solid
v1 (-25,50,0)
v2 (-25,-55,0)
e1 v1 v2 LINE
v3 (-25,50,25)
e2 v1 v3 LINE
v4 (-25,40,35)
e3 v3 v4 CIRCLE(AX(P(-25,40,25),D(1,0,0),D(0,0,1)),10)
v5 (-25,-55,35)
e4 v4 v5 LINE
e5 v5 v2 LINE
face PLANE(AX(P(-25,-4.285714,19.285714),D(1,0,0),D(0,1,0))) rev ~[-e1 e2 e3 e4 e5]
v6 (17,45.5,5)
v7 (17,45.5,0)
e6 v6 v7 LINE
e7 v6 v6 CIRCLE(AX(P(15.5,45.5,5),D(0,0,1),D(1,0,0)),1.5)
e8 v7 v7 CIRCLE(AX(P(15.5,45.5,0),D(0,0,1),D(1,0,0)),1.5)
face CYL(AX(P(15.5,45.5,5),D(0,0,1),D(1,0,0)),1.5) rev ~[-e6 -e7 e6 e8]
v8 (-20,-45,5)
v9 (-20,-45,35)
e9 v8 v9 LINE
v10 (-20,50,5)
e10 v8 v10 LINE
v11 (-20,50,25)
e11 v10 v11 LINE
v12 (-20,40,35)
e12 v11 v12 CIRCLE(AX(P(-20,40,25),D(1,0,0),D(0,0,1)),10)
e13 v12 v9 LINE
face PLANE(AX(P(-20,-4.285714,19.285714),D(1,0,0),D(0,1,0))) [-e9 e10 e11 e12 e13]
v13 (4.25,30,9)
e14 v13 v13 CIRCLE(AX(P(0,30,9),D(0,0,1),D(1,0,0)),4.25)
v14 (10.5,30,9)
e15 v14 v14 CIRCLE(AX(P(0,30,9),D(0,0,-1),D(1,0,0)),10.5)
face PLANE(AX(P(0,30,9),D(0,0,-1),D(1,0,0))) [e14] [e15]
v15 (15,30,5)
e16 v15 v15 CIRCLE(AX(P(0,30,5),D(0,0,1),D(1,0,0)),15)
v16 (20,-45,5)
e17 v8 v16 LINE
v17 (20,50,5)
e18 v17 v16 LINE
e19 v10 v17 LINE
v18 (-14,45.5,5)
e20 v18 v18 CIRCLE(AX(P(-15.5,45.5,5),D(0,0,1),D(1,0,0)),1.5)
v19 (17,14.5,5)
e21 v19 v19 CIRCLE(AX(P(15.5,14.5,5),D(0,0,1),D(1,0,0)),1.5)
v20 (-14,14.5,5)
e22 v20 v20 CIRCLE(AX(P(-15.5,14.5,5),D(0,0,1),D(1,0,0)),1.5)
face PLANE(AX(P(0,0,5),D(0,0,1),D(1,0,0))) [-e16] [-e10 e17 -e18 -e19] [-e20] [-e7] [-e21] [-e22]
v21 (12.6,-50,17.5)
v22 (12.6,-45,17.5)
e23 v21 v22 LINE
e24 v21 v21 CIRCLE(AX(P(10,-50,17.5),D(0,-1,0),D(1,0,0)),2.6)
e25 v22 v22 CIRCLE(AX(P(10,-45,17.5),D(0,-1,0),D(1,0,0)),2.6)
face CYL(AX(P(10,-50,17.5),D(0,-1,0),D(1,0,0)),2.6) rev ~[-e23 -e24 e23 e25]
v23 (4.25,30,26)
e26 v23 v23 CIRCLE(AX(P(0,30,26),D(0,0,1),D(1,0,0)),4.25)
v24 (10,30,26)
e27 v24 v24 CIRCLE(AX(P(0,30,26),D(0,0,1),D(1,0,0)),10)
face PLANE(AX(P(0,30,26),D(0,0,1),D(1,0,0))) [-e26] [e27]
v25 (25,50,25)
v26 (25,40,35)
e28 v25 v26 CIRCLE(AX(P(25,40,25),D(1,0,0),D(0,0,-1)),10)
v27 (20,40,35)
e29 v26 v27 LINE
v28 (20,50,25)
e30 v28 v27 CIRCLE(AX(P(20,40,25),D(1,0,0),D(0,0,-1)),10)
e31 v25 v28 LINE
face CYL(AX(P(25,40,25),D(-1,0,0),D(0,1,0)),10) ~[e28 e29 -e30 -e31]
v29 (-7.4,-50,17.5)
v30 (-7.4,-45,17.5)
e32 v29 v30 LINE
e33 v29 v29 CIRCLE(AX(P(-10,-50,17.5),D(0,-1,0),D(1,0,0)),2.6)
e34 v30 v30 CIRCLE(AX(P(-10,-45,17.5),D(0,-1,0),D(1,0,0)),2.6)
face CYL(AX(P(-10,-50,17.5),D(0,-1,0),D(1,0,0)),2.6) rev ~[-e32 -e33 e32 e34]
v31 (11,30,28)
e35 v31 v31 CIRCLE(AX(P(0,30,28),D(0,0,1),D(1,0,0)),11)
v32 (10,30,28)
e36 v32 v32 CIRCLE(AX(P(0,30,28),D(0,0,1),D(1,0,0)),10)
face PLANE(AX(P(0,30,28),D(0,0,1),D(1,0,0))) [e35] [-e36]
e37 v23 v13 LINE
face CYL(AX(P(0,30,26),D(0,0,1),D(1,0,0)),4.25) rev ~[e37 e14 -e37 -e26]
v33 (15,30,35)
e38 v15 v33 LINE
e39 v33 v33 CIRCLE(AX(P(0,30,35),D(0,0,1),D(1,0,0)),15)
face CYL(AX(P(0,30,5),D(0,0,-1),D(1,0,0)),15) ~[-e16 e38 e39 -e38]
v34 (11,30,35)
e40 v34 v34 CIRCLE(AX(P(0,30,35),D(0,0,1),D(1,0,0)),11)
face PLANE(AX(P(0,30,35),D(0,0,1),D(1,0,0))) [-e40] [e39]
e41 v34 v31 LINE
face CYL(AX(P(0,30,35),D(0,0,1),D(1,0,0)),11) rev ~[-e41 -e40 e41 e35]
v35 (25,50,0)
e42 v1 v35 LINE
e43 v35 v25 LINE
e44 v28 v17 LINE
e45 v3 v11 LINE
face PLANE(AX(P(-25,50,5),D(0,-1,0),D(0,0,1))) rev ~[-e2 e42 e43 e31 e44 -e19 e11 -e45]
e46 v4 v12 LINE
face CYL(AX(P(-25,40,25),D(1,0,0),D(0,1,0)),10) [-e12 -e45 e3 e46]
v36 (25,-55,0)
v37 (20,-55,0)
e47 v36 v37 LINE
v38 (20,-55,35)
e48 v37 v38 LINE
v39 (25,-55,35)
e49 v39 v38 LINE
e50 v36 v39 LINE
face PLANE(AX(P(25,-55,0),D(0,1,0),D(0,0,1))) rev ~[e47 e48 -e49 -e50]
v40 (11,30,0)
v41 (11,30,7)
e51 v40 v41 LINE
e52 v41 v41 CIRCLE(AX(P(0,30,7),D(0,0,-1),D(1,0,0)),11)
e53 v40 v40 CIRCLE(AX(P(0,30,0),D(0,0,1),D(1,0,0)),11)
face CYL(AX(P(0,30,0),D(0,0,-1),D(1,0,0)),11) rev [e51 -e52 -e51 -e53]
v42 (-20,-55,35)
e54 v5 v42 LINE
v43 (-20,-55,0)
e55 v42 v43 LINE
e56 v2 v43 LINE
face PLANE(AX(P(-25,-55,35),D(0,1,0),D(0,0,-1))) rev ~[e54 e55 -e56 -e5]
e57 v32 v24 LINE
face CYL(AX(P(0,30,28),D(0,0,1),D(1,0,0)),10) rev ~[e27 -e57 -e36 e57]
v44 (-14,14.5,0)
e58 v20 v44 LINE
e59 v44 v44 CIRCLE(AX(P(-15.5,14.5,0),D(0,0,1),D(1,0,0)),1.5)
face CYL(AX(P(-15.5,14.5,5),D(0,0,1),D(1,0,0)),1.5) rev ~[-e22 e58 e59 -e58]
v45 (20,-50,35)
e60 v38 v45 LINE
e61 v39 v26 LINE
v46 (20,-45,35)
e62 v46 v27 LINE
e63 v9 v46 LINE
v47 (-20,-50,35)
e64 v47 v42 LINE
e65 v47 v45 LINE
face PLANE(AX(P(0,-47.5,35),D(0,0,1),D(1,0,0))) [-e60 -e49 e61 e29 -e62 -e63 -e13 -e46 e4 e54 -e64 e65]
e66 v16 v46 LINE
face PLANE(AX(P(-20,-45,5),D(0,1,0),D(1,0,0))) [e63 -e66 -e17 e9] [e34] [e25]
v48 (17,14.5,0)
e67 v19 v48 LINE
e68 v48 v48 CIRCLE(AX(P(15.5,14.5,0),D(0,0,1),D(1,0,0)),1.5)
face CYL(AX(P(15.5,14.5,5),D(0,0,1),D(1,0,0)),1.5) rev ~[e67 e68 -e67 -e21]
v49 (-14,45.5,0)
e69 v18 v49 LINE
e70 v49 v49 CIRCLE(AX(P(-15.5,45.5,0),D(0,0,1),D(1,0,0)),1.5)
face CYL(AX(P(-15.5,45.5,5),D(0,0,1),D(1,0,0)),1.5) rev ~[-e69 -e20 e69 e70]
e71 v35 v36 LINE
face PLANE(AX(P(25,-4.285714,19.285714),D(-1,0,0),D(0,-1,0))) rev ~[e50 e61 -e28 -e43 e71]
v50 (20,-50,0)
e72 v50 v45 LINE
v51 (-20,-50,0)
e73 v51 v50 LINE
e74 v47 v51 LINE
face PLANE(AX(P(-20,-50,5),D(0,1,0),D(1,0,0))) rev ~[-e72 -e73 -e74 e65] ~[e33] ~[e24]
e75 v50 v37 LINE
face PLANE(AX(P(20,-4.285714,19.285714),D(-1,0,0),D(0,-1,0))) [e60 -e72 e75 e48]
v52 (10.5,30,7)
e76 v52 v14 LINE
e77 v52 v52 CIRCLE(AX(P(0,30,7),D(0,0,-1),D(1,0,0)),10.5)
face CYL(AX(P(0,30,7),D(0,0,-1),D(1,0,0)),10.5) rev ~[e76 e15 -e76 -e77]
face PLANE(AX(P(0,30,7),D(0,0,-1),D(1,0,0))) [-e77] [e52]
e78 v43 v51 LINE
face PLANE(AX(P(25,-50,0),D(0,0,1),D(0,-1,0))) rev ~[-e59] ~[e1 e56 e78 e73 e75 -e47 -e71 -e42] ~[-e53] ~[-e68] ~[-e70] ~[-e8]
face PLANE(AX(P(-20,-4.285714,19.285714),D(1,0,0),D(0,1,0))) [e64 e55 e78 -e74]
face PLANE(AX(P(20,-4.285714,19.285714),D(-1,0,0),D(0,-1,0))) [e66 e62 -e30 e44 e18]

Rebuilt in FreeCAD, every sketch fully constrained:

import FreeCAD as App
import Part
import Sketcher

V = App.Vector


def edges_at(feature, points):
    """Names of the edges that pass closest to the given points."""
    edges = feature.Shape.Edges
    near = lambda p: min(range(len(edges)), key=lambda i: edges[i].distToShape(Part.Vertex(*p))[0])
    return sorted({f"Edge{near(p) + 1}" for p in points})


def add_polygon(sketch, points):
    """Adds a closed chain of lines whose ends are joined by coincident constraints."""
    first, n = sketch.GeometryCount, len(points)
    for a, b in zip(points, points[1:] + points[:1]):
        sketch.addGeometry(Part.LineSegment(App.Vector(*a, 0), App.Vector(*b, 0)), False)
    for i in range(n):
        sketch.addConstraint(Sketcher.Constraint("Coincident", first + i, 2, first + (i + 1) % n, 1))

doc = App.newDocument("Part")
params = doc.addObject("Spreadsheet::Sheet", "Params")
for row, (alias, value) in enumerate([
    ("sketch1_diameter", "22 mm"),
    ("sketch1_width", "50 mm"),
    ("sketch1_height", "100 mm"),
    ("pad1_length", "5 mm"),
    ("sketch2_width", "100 mm"),
    ("sketch2_width2", "5 mm"),
    ("sketch2_height", "30 mm"),
    ("pad2_length", "5 mm"),
    ("sketch3_width", "5 mm"),
    ("sketch3_width2", "100 mm"),
    ("sketch3_height", "30 mm"),
    ("pad3_length", "5 mm"),
    ("sketch4_width", "40 mm"),
    ("sketch4_height", "5 mm"),
    ("pad4_length", "30 mm"),
    ("sketch5_diameter", "3 mm"),
    ("pocket1_length", "5 mm"),
    ("sketch6_diameter", "30 mm"),
    ("pad5_length", "30 mm"),
    ("sketch7_diameter", "22 mm"),
    ("pocket2_length", "7 mm"),
    ("sketch8_diameter", "20 mm"),
    ("pocket3_length", "2 mm"),
    ("sketch9_diameter", "8.5 mm"),
    ("sketch10_diameter", "22 mm"),
    ("pocket5_length", "2 mm"),
    ("sketch11_diameter", "21 mm"),
    ("pocket6_length", "2 mm"),
    ("sketch12_diameter", "5.2 mm"),
    ("pocket7_length", "5 mm"),
    ("fillet_radius", "10 mm"),
], start=1):
    params.set(f"A{row}", alias)
    params.set(f"B{row}", "=" + value)
    params.setAlias(f"B{row}", alias)

body = doc.addObject("PartDesign::Body", "Body")

# Sketch on XY plane
sketch1 = body.newObject("Sketcher::SketchObject", "Sketch")
sketch1.AttachmentSupport = (doc.getObject("XY_Plane"), [""])
sketch1.MapMode = "FlatFace"
add_polygon(sketch1, [(-25, 50), (-25, -50), (25, -50), (25, 50)])  # lines 0-3
sketch1.addGeometry(Part.Circle(V(0, 30, 0), V(0, 0, 1), 11), False)  # 4
sketch1.addConstraint([
    Sketcher.Constraint("Vertical", 0),
    Sketcher.Constraint("Horizontal", 1),
    Sketcher.Constraint("Vertical", 2),
    Sketcher.Constraint("Horizontal", 3),
    Sketcher.Constraint("Symmetric", 0, 2, 2, 2, -1, 1),
    Sketcher.Constraint("PointOnObject", 4, 3, -2),
    Sketcher.Constraint("Diameter", 4, 22.0),
    Sketcher.Constraint("DistanceX", 1, 1, 1, 2, 50.0),
    Sketcher.Constraint("DistanceY", 0, 2, 0, 1, 100.0),
    Sketcher.Constraint("DistanceY", -1, 1, 4, 3, 30.0),
])
sketch1.setExpression("Constraints[10]", "Params.sketch1_diameter")
sketch1.setExpression("Constraints[11]", "Params.sketch1_width")
sketch1.setExpression("Constraints[12]", "Params.sketch1_height")
pad1 = body.newObject("PartDesign::Pad", "Pad")
pad1.Profile = sketch1
pad1.setExpression("Length", "Params.pad1_length")

# Sketch on YZ plane
sketch2 = body.newObject("Sketcher::SketchObject", "Sketch001")
sketch2.AttachmentSupport = (doc.getObject("YZ_Plane"), [""])
sketch2.MapMode = "FlatFace"
sketch2.AttachmentOffset = App.Placement(V(0, 0, -25), App.Rotation())
add_polygon(sketch2, [(50, 35), (50, 5), (-50, 5), (-50, 0), (-55, 0), (-55, 35)])  # lines 0-5
sketch2.addConstraint([
    Sketcher.Constraint("Vertical", 0),
    Sketcher.Constraint("Horizontal", 1),
    Sketcher.Constraint("Vertical", 2),
    Sketcher.Constraint("Horizontal", 3),
    Sketcher.Constraint("Vertical", 4),
    Sketcher.Constraint("Horizontal", 5),
    Sketcher.Constraint("PointOnObject", 2, 2, -1),
    Sketcher.Constraint("Equal", 3, 2),
    Sketcher.Constraint("DistanceX", 1, 2, 1, 1, 100.0),
    Sketcher.Constraint("DistanceX", 3, 2, 3, 1, 5.0),
    Sketcher.Constraint("DistanceY", 0, 2, 0, 1, 30.0),
    Sketcher.Constraint("DistanceX", -1, 1, 0, 2, 50.0),
])
sketch2.setExpression("Constraints[14]", "Params.sketch2_width")
sketch2.setExpression("Constraints[15]", "Params.sketch2_width2")
sketch2.setExpression("Constraints[16]", "Params.sketch2_height")
pad2 = body.newObject("PartDesign::Pad", "Pad001")
pad2.Profile = sketch2
pad2.setExpression("Length", "Params.pad2_length")

# Sketch on YZ plane
sketch3 = body.newObject("Sketcher::SketchObject", "Sketch002")
sketch3.AttachmentSupport = (doc.getObject("YZ_Plane"), [""])
sketch3.MapMode = "FlatFace"
sketch3.AttachmentOffset = App.Placement(V(0, 0, 25), App.Rotation())
add_polygon(sketch3, [(-55, 0), (-50, 0), (-50, 5), (50, 5), (50, 35), (-55, 35)])  # lines 0-5
sketch3.addConstraint([
    Sketcher.Constraint("Horizontal", 0),
    Sketcher.Constraint("Vertical", 1),
    Sketcher.Constraint("Horizontal", 2),
    Sketcher.Constraint("Vertical", 3),
    Sketcher.Constraint("Horizontal", 4),
    Sketcher.Constraint("Vertical", 5),
    Sketcher.Constraint("PointOnObject", 0, 2, -1),
    Sketcher.Constraint("Equal", 0, 1),
    Sketcher.Constraint("DistanceX", 0, 1, 0, 2, 5.0),
    Sketcher.Constraint("DistanceX", 2, 1, 2, 2, 100.0),
    Sketcher.Constraint("DistanceY", 3, 1, 3, 2, 30.0),
    Sketcher.Constraint("DistanceX", 0, 2, -1, 1, 50.0),
])
sketch3.setExpression("Constraints[14]", "Params.sketch3_width")
sketch3.setExpression("Constraints[15]", "Params.sketch3_width2")
sketch3.setExpression("Constraints[16]", "Params.sketch3_height")
pad3 = body.newObject("PartDesign::Pad", "Pad002")
pad3.Profile = sketch3
pad3.setExpression("Length", "Params.pad3_length")
pad3.Reversed = True

# Sketch on XY plane
sketch4 = body.newObject("Sketcher::SketchObject", "Sketch003")
sketch4.AttachmentSupport = (doc.getObject("XY_Plane"), [""])
sketch4.MapMode = "FlatFace"
sketch4.AttachmentOffset = App.Placement(V(0, 0, 5), App.Rotation())
add_polygon(sketch4, [(-20, -45), (-20, -50), (20, -50), (20, -45)])  # lines 0-3
sketch4.addConstraint([
    Sketcher.Constraint("Vertical", 0),
    Sketcher.Constraint("Horizontal", 1),
    Sketcher.Constraint("Vertical", 2),
    Sketcher.Constraint("Horizontal", 3),
    Sketcher.Constraint("DistanceX", 1, 1, 1, 2, 40.0),
    Sketcher.Constraint("DistanceY", 0, 2, 0, 1, 5.0),
    Sketcher.Constraint("DistanceX", 0, 2, -1, 1, 20.0),
    Sketcher.Constraint("DistanceY", 0, 2, -1, 1, 50.0),
])
sketch4.setExpression("Constraints[8]", "Params.sketch4_width")
sketch4.setExpression("Constraints[9]", "Params.sketch4_height")
pad4 = body.newObject("PartDesign::Pad", "Pad003")
pad4.Profile = sketch4
pad4.setExpression("Length", "Params.pad4_length")

# Sketch on XY plane
sketch5 = body.newObject("Sketcher::SketchObject", "Sketch004")
sketch5.AttachmentSupport = (doc.getObject("XY_Plane"), [""])
sketch5.MapMode = "FlatFace"
sketch5.AttachmentOffset = App.Placement(V(0, 0, 5), App.Rotation())
sketch5.addGeometry([
    Part.Circle(V(-15.5, 45.5, 0), V(0, 0, 1), 1.5),
    Part.Circle(V(-15.5, 14.5, 0), V(0, 0, 1), 1.5),
    Part.Circle(V(15.5, 14.5, 0), V(0, 0, 1), 1.5),
    Part.Circle(V(15.5, 45.5, 0), V(0, 0, 1), 1.5),
], False)
sketch5.addConstraint([
    Sketcher.Constraint("Equal", 0, 1),
    Sketcher.Constraint("Equal", 1, 2),
    Sketcher.Constraint("Equal", 2, 3),
    Sketcher.Constraint("Symmetric", 1, 3, 2, 3, -2),
    Sketcher.Constraint("Symmetric", 0, 3, 3, 3, -2),
    Sketcher.Constraint("Vertical", 0, 3, 1, 3),
    Sketcher.Constraint("Diameter", 0, 3.0),
    Sketcher.Constraint("DistanceY", 1, 3, 0, 3, 31.0),
    Sketcher.Constraint("DistanceX", 1, 3, 2, 3, 31.0),
    Sketcher.Constraint("DistanceY", -1, 1, 0, 3, 45.5),
])
sketch5.setExpression("Constraints[6]", "Params.sketch5_diameter")
pocket1 = body.newObject("PartDesign::Pocket", "Pocket")
pocket1.Profile = sketch5
pocket1.setExpression("Length", "Params.pocket1_length")

# Sketch on XY plane
sketch6 = body.newObject("Sketcher::SketchObject", "Sketch005")
sketch6.AttachmentSupport = (doc.getObject("XY_Plane"), [""])
sketch6.MapMode = "FlatFace"
sketch6.AttachmentOffset = App.Placement(V(0, 0, 5), App.Rotation())
sketch6.addGeometry(Part.Circle(V(0, 30, 0), V(0, 0, 1), 15), False)
sketch6.addConstraint([
    Sketcher.Constraint("PointOnObject", 0, 3, -2),
    Sketcher.Constraint("Diameter", 0, 30.0),
    Sketcher.Constraint("DistanceY", -1, 1, 0, 3, 30.0),
])
sketch6.setExpression("Constraints[1]", "Params.sketch6_diameter")
pad5 = body.newObject("PartDesign::Pad", "Pad004")
pad5.Profile = sketch6
pad5.setExpression("Length", "Params.pad5_length")

# Sketch on XY plane
sketch7 = body.newObject("Sketcher::SketchObject", "Sketch006")
sketch7.AttachmentSupport = (doc.getObject("XY_Plane"), [""])
sketch7.MapMode = "FlatFace"
sketch7.AttachmentOffset = App.Placement(V(0, 0, 35), App.Rotation())
sketch7.addGeometry(Part.Circle(V(0, 30, 0), V(0, 0, 1), 11), False)
sketch7.addConstraint([
    Sketcher.Constraint("PointOnObject", 0, 3, -2),
    Sketcher.Constraint("Diameter", 0, 22.0),
    Sketcher.Constraint("DistanceY", -1, 1, 0, 3, 30.0),
])
sketch7.setExpression("Constraints[1]", "Params.sketch7_diameter")
pocket2 = body.newObject("PartDesign::Pocket", "Pocket001")
pocket2.Profile = sketch7
pocket2.setExpression("Length", "Params.pocket2_length")

# Sketch on XY plane
sketch8 = body.newObject("Sketcher::SketchObject", "Sketch007")
sketch8.AttachmentSupport = (doc.getObject("XY_Plane"), [""])
sketch8.MapMode = "FlatFace"
sketch8.AttachmentOffset = App.Placement(V(0, 0, 28), App.Rotation())
sketch8.addGeometry(Part.Circle(V(0, 30, 0), V(0, 0, 1), 10), False)
sketch8.addConstraint([
    Sketcher.Constraint("PointOnObject", 0, 3, -2),
    Sketcher.Constraint("Diameter", 0, 20.0),
    Sketcher.Constraint("DistanceY", -1, 1, 0, 3, 30.0),
])
sketch8.setExpression("Constraints[1]", "Params.sketch8_diameter")
pocket3 = body.newObject("PartDesign::Pocket", "Pocket002")
pocket3.Profile = sketch8
pocket3.setExpression("Length", "Params.pocket3_length")

# Sketch on XY plane
sketch9 = body.newObject("Sketcher::SketchObject", "Sketch008")
sketch9.AttachmentSupport = (doc.getObject("XY_Plane"), [""])
sketch9.MapMode = "FlatFace"
sketch9.AttachmentOffset = App.Placement(V(0, 0, 26), App.Rotation())
sketch9.addGeometry(Part.Circle(V(0, 30, 0), V(0, 0, 1), 4.2), False)
sketch9.addConstraint([
    Sketcher.Constraint("PointOnObject", 0, 3, -2),
    Sketcher.Constraint("Diameter", 0, 8.5),
    Sketcher.Constraint("DistanceY", -1, 1, 0, 3, 30.0),
])
sketch9.setExpression("Constraints[1]", "Params.sketch9_diameter")
pocket4 = body.newObject("PartDesign::Pocket", "Pocket003")
pocket4.Profile = sketch9
pocket4.Type = "ThroughAll"

# Sketch on XY plane
sketch10 = body.newObject("Sketcher::SketchObject", "Sketch009")
sketch10.AttachmentSupport = (doc.getObject("XY_Plane"), [""])
sketch10.MapMode = "FlatFace"
sketch10.AttachmentOffset = App.Placement(V(0, 0, 5), App.Rotation())
sketch10.addGeometry(Part.Circle(V(0, 30, 0), V(0, 0, 1), 11), False)
sketch10.addConstraint([
    Sketcher.Constraint("PointOnObject", 0, 3, -2),
    Sketcher.Constraint("Diameter", 0, 22.0),
    Sketcher.Constraint("DistanceY", -1, 1, 0, 3, 30.0),
])
sketch10.setExpression("Constraints[1]", "Params.sketch10_diameter")
pocket5 = body.newObject("PartDesign::Pocket", "Pocket004")
pocket5.Profile = sketch10
pocket5.setExpression("Length", "Params.pocket5_length")
pocket5.Reversed = True

# Sketch on XY plane
sketch11 = body.newObject("Sketcher::SketchObject", "Sketch010")
sketch11.AttachmentSupport = (doc.getObject("XY_Plane"), [""])
sketch11.MapMode = "FlatFace"
sketch11.AttachmentOffset = App.Placement(V(0, 0, 7), App.Rotation())
sketch11.addGeometry(Part.Circle(V(0, 30, 0), V(0, 0, 1), 10), False)
sketch11.addConstraint([
    Sketcher.Constraint("PointOnObject", 0, 3, -2),
    Sketcher.Constraint("Diameter", 0, 21.0),
    Sketcher.Constraint("DistanceY", -1, 1, 0, 3, 30.0),
])
sketch11.setExpression("Constraints[1]", "Params.sketch11_diameter")
pocket6 = body.newObject("PartDesign::Pocket", "Pocket005")
pocket6.Profile = sketch11
pocket6.setExpression("Length", "Params.pocket6_length")
pocket6.Reversed = True

# Sketch on XZ plane
sketch12 = body.newObject("Sketcher::SketchObject", "Sketch011")
sketch12.AttachmentSupport = (doc.getObject("XZ_Plane"), [""])
sketch12.MapMode = "FlatFace"
sketch12.AttachmentOffset = App.Placement(V(0, 0, 50), App.Rotation())
sketch12.addGeometry([
    Part.Circle(V(-10, 17.5, 0), V(0, 0, 1), 2.6),
    Part.Circle(V(10, 17.5, 0), V(0, 0, 1), 2.6),
], False)
sketch12.addConstraint([
    Sketcher.Constraint("Equal", 0, 1),
    Sketcher.Constraint("Symmetric", 0, 3, 1, 3, -2),
    Sketcher.Constraint("Diameter", 0, 5.2),
    Sketcher.Constraint("DistanceX", 0, 3, -1, 1, 10.0),
    Sketcher.Constraint("DistanceY", -1, 1, 0, 3, 17.5),
])
sketch12.setExpression("Constraints[2]", "Params.sketch12_diameter")
pocket7 = body.newObject("PartDesign::Pocket", "Pocket006")
pocket7.Profile = sketch12
pocket7.setExpression("Length", "Params.pocket7_length")
doc.recompute()

fillet = body.newObject("PartDesign::Fillet", "Fillet")
fillet.Base = (pocket7, edges_at(pocket7, [(22.5, 50, 35), (-22.5, 50, 35)]))
fillet.setExpression("Radius", "Params.fillet_radius")

doc.recompute()
